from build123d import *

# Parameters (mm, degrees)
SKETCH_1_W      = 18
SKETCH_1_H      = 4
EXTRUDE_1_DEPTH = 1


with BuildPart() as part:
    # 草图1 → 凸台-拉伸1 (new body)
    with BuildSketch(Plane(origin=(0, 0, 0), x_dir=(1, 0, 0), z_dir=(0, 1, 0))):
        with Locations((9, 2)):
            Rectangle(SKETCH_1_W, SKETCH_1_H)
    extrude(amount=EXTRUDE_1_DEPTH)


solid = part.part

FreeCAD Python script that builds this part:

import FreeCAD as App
import Part
import Sketcher
from FreeCAD import Vector


def add_polygon(sketch, points):
    """Adds a closed chain of lines whose ends are joined by coincident constraints."""
    first, n = sketch.GeometryCount, len(points)
    for a, b in zip(points, points[1:] + points[:1]):
        sketch.addGeometry(Part.LineSegment(App.Vector(*a, 0), App.Vector(*b, 0)), False)
    for i in range(n):
        sketch.addConstraint(Sketcher.Constraint("Coincident", first + i, 2, first + (i + 1) % n, 1))

doc = App.newDocument("Part")
body = doc.addObject("PartDesign::Body", "Body")

sketch1 = body.newObject("Sketcher::SketchObject", "Sketch")
sketch1.AttachmentSupport = (doc.getObject("XZ_Plane"), [""])
sketch1.MapMode = "FlatFace"
add_polygon(sketch1, [(0, -4), (0, 0), (18, 0), (18, -4)])
sketch1.addConstraint([
    Sketcher.Constraint("Vertical", 0),
    Sketcher.Constraint("Horizontal", 1),
    Sketcher.Constraint("Vertical", 2),
    Sketcher.Constraint("Horizontal", 3),
    Sketcher.Constraint("Coincident", 0, 2, -1, 1),
    Sketcher.Constraint("DistanceX", 1, 1, 1, 2, 18.0),
    Sketcher.Constraint("DistanceY", 0, 1, 0, 2, 4.0),
])
pad1 = body.newObject("PartDesign::Pad", "Pad")
pad1.Profile = sketch1
pad1.Length = 1
pad1.Reversed = True

doc.recompute()
